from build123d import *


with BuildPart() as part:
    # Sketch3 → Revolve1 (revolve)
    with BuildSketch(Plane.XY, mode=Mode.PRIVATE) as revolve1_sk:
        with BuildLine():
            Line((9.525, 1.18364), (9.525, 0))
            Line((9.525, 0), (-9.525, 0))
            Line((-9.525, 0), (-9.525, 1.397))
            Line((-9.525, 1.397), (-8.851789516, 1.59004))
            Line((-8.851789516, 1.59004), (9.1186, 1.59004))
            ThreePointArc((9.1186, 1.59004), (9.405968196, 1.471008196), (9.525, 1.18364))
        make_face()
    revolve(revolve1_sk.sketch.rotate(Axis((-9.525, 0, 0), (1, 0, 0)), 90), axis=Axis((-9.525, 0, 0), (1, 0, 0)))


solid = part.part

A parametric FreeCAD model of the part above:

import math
import FreeCAD as App
import Part
import Sketcher

V = App.Vector
Q = App.Units.Quantity

doc = App.newDocument("Part")
body = doc.addObject("PartDesign::Body", "Body")

# Sketch on XY plane
sketch1 = doc.addObject("Sketcher::SketchObject", "Sketch")
body.addObject(sketch1)
sketch1.AttachmentSupport = (doc.XY_Plane, [""])
sketch1.MapMode = "FlatFace"
sketch1.addGeometry([
    Part.LineSegment(V(9.53, 0, 0), V(9.53, 1.18, 0)),  # 0
    Part.ArcOfCircle(Part.Circle(V(9.12, 1.18, 0), V(0, 0, 1), 0.41), math.radians(0), math.radians(90)),  # 1
    Part.LineSegment(V(9.12, 1.59, 0), V(-8.85, 1.59, 0)),  # 2
    Part.LineSegment(V(-8.85, 1.59, 0), V(-9.53, 1.4, 0)),  # 3
    Part.LineSegment(V(-9.53, 1.4, 0), V(-9.53, 0, 0)),  # 4
    Part.LineSegment(V(-9.53, 0, 0), V(9.53, 0, 0)),  # 5
], False)
sketch1.addConstraint([
    Sketcher.Constraint("Tangent", 0, 2, 1, 1),
    Sketcher.Constraint("Tangent", 1, 2, 2, 1),
    Sketcher.Constraint("Coincident", 2, 2, 3, 1),
    Sketcher.Constraint("Coincident", 3, 2, 4, 1),
    Sketcher.Constraint("Coincident", 4, 2, 5, 1),
    Sketcher.Constraint("Coincident", 5, 2, 0, 1),
    Sketcher.Constraint("Vertical", 0),
    Sketcher.Constraint("Horizontal", 2),
    Sketcher.Constraint("Vertical", 4),
    Sketcher.Constraint("Horizontal", 5),
    Sketcher.Constraint("Symmetric", 4, 2, 5, 2, -1, 1),
    Sketcher.Constraint("Angle", 3, Q("-164 deg")),
    Sketcher.Constraint("Radius", 1, Q("0.016 in")),
    Sketcher.Constraint("DistanceX", 5, 1, 5, 2, Q("0.75 in")),
    Sketcher.Constraint("DistanceY", 4, 2, 4, 1, Q("0.055 in")),
    Sketcher.Constraint("DistanceY", 0, 1, 0, 2, Q("0.0466 in")),
])
revolution = doc.addObject("PartDesign::Revolution", "Revolution")
body.addObject(revolution)
revolution.Profile = sketch1
revolution.ReferenceAxis = (sketch1, ["H_Axis"])
revolution.Angle = 360

doc.recompute()
